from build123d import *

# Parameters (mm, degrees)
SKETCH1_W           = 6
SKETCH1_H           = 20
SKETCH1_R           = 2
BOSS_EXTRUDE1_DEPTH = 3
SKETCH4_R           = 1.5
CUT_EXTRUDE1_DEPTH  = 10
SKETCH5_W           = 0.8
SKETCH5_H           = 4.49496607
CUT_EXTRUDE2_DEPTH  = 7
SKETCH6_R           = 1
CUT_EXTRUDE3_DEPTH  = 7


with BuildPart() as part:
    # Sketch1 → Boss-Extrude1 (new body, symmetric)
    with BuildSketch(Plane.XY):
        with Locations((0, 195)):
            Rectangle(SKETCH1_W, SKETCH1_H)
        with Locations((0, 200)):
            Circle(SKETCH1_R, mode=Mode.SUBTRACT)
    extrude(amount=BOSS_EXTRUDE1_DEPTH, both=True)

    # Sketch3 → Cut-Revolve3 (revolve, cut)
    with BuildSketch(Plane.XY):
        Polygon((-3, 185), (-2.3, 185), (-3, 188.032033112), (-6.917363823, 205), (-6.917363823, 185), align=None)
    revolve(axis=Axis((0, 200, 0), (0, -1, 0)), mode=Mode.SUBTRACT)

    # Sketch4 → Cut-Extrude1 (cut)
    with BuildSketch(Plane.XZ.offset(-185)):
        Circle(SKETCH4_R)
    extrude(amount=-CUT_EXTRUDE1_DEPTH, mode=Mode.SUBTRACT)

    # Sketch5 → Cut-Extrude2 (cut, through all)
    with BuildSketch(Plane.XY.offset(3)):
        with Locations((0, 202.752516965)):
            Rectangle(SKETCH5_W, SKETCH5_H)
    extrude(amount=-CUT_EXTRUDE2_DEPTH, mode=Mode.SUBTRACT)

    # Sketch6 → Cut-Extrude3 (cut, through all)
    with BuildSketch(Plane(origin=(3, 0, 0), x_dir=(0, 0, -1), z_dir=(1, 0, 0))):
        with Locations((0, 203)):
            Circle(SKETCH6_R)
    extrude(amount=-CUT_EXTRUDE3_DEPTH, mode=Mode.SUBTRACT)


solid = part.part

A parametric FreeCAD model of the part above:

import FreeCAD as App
import Part
import Sketcher
from FreeCAD import Vector
Q = App.Units.Quantity


def add_polygon(sketch, points):
    """Adds a closed chain of lines whose ends are joined by coincident constraints."""
    first, n = sketch.GeometryCount, len(points)
    for a, b in zip(points, points[1:] + points[:1]):
        sketch.addGeometry(Part.LineSegment(App.Vector(*a, 0), App.Vector(*b, 0)), False)
    for i in range(n):
        sketch.addConstraint(Sketcher.Constraint("Coincident", first + i, 2, first + (i + 1) % n, 1))

doc = App.newDocument("Part")
body = doc.addObject("PartDesign::Body", "Body")

# Sketch on XY plane
sketch1 = body.newObject("Sketcher::SketchObject", "Sketch")
sketch1.AttachmentSupport = (doc.getObject("XY_Plane"), [""])
sketch1.MapMode = "FlatFace"
add_polygon(sketch1, [(-3, 205), (-3, 185), (3, 185), (3, 205)])  # lines 0-3
sketch1.addGeometry(Part.Circle(Vector(0, 200, 0), Vector(0, 0, 1), 2), False)  # 4
sketch1.addConstraint([
    Sketcher.Constraint("Vertical", 0),
    Sketcher.Constraint("Horizontal", 1),
    Sketcher.Constraint("Vertical", 2),
    Sketcher.Constraint("Horizontal", 3),
    Sketcher.Constraint("PointOnObject", 4, 3, -2),
    Sketcher.Constraint("Diameter", 4, 4.0),
    Sketcher.Constraint("DistanceX", 1, 1, 1, 2, 6.0),
    Sketcher.Constraint("DistanceY", 0, 2, 0, 1, 20.0),
    Sketcher.Constraint("DistanceY", -1, 1, 4, 3, 200.0),
    Sketcher.Constraint("DistanceX", 0, 2, -1, 1, 3.0),
    Sketcher.Constraint("DistanceY", -1, 1, 0, 2, 185.0),
])
pad1 = body.newObject("PartDesign::Pad", "Pad")
pad1.Profile = sketch1
pad1.Length = 6
pad1.Midplane = True

# Sketch on XY plane
sketch2 = body.newObject("Sketcher::SketchObject", "Sketch001")
sketch2.AttachmentSupport = (doc.getObject("XY_Plane"), [""])
sketch2.MapMode = "FlatFace"
add_polygon(sketch2, [(-2.3, 185), (-3, 188.032033), (-6.917364, 205), (-6.917364, 185)])  # lines 0-3
sketch2.addConstraint([
    Sketcher.Constraint("Vertical", 2),
    Sketcher.Constraint("Horizontal", 3),
    Sketcher.Constraint("Parallel", 0, 1),
    Sketcher.Constraint("DistanceY", 2, 2, 2, 1, 20.0),
    Sketcher.Constraint("Angle", 0, Q("103 deg")),
    Sketcher.Constraint("DistanceX", 0, 2, -1, 1, 3.0),
    Sketcher.Constraint("DistanceY", -1, 1, 1, 2, 205.0),
    Sketcher.Constraint("DistanceX", 3, 2, -1, 1, 2.3),
])
groove = body.newObject("PartDesign::Groove", "Groove")
groove.Profile = sketch2
groove.ReferenceAxis = (sketch2, ["V_Axis"])
groove.Angle = 360

# Sketch on XZ plane
sketch3 = body.newObject("Sketcher::SketchObject", "Sketch002")
sketch3.AttachmentSupport = (doc.getObject("XZ_Plane"), [""])
sketch3.MapMode = "FlatFace"
sketch3.AttachmentOffset = App.Placement(Vector(0, 0, -185), App.Rotation())
sketch3.addGeometry(Part.Circle(Vector(0, 0, 0), Vector(0, 0, 1), 1.5), False)
sketch3.addConstraint([
    Sketcher.Constraint("Coincident", 0, 3, -1, 1),
    Sketcher.Constraint("Diameter", 0, 3.0),
])
pocket1 = body.newObject("PartDesign::Pocket", "Pocket")
pocket1.Profile = sketch3
pocket1.Length = 10

# Sketch on XY plane
sketch4 = body.newObject("Sketcher::SketchObject", "Sketch003")
sketch4.AttachmentSupport = (doc.getObject("XY_Plane"), [""])
sketch4.MapMode = "FlatFace"
sketch4.AttachmentOffset = App.Placement(Vector(0, 0, 3), App.Rotation())
add_polygon(sketch4, [(-0.4, 205), (-0.4, 200.505034), (0.4, 200.505034), (0.4, 205)])  # lines 0-3
sketch4.addConstraint([
    Sketcher.Constraint("Vertical", 0),
    Sketcher.Constraint("Horizontal", 1),
    Sketcher.Constraint("Vertical", 2),
    Sketcher.Constraint("Horizontal", 3),
    Sketcher.Constraint("DistanceX", 1, 1, 1, 2, 0.8),
    Sketcher.Constraint("DistanceY", -1, 1, 2, 2, 205.0),
    Sketcher.Constraint("DistanceX", 0, 2, -1, 1, 0.4),
    Sketcher.Constraint("DistanceY", 0, 2, 0, 1, 4.494966),
])
pocket2 = body.newObject("PartDesign::Pocket", "Pocket001")
pocket2.Profile = sketch4
pocket2.Type = "ThroughAll"

# Sketch on YZ plane
sketch5 = body.newObject("Sketcher::SketchObject", "Sketch004")
sketch5.AttachmentSupport = (doc.getObject("YZ_Plane"), [""])
sketch5.MapMode = "FlatFace"
sketch5.AttachmentOffset = App.Placement(Vector(0, 0, 3), App.Rotation())
sketch5.addGeometry(Part.Circle(Vector(203, 0, 0), Vector(0, 0, 1), 1), False)
sketch5.addConstraint([
    Sketcher.Constraint("PointOnObject", 0, 3, -1),
    Sketcher.Constraint("Diameter", 0, 2.0),
    Sketcher.Constraint("DistanceX", -1, 1, 0, 3, 203.0),
])
pocket3 = body.newObject("PartDesign::Pocket", "Pocket002")
pocket3.Profile = sketch5
pocket3.Type = "ThroughAll"

doc.recompute()
